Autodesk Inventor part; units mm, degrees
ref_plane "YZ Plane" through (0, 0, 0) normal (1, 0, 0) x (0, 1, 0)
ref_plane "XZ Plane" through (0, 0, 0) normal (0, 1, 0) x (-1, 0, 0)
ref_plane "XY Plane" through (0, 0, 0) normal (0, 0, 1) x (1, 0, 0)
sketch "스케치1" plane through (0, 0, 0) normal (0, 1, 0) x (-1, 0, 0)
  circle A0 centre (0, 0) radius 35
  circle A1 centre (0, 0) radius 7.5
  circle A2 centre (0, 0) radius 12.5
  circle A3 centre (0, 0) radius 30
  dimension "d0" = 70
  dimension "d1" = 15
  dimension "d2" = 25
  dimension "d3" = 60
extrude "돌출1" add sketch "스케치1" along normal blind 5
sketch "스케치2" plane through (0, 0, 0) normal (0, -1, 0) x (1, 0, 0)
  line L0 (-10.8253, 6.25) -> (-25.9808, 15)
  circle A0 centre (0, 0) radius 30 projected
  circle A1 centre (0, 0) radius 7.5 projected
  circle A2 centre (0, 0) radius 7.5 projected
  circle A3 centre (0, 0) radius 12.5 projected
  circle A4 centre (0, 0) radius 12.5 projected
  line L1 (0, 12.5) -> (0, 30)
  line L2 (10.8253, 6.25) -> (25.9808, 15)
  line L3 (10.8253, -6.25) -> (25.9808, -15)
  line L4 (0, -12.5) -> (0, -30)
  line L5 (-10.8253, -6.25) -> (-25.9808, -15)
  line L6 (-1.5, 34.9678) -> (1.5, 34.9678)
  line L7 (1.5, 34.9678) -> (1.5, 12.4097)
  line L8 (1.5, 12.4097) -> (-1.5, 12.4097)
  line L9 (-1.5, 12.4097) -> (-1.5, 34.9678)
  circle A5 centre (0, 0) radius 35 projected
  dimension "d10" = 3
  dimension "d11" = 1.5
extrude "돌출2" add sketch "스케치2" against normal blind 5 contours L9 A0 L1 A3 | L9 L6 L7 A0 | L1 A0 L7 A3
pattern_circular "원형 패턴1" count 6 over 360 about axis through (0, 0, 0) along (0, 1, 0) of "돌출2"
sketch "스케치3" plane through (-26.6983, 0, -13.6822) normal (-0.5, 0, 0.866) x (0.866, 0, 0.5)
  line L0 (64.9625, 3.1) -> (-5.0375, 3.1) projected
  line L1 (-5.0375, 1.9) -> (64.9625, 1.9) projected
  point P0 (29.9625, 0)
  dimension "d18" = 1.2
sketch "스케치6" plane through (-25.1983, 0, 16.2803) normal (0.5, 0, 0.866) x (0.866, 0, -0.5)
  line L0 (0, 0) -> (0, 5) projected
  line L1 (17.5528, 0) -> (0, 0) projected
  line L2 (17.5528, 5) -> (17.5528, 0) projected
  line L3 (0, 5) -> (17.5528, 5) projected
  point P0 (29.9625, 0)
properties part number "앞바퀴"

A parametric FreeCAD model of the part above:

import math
import FreeCAD as App
import Part
import Sketcher
from FreeCAD import Vector
Q = App.Units.Quantity

doc = App.newDocument("Part")
params = doc.addObject("Spreadsheet::Sheet", "Params")
for row, (alias, value) in enumerate([
    ("sketch1_diameter", "70 mm"),
    ("sketch1_diameter2", "60 mm"),
    ("sketch1_diameter3", "25 mm"),
    ("sketch1_diameter4", "15 mm"),
    ("pad1_length", "5 mm"),
    ("sketch2_width", "3 mm"),
    ("sketch2_radius", "12.5 mm"),
    ("pad2_length", "5 mm"),
], start=1):
    params.set(f"A{row}", alias)
    params.set(f"B{row}", "=" + value)
    params.setAlias(f"B{row}", alias)

body = doc.addObject("PartDesign::Body", "Body")
body.AllowCompound = True

# Sketch on XZ plane
sketch1 = body.newObject("Sketcher::SketchObject", "Sketch")
sketch1.AttachmentSupport = (doc.getObject("XZ_Plane"), [""])
sketch1.MapMode = "FlatFace"
sketch1.addGeometry(Part.Circle(Vector(0, 0, 0), Vector(0, 0, 1), 35), False)
sketch1.addGeometry(Part.Circle(Vector(0, 0, 0), Vector(0, 0, 1), 30), False)
sketch1.addGeometry(Part.Circle(Vector(0, 0, 0), Vector(0, 0, 1), 12), False)
sketch1.addGeometry(Part.Circle(Vector(0, 0, 0), Vector(0, 0, 1), 8), False)
sketch1.addConstraint(Sketcher.Constraint("Coincident", 0, 3, -1, 1))
sketch1.addConstraint(Sketcher.Constraint("Coincident", 1, 3, -1, 1))
sketch1.addConstraint(Sketcher.Constraint("Coincident", 2, 3, -1, 1))
sketch1.addConstraint(Sketcher.Constraint("Coincident", 3, 3, -1, 1))
sketch1.addConstraint(Sketcher.Constraint("Diameter", 0, Q("70 mm")))
sketch1.addConstraint(Sketcher.Constraint("Diameter", 1, Q("60 mm")))
sketch1.addConstraint(Sketcher.Constraint("Diameter", 2, Q("25 mm")))
sketch1.addConstraint(Sketcher.Constraint("Diameter", 3, Q("15 mm")))
sketch1.setExpression("Constraints[4]", "Params.sketch1_diameter")
sketch1.setExpression("Constraints[5]", "Params.sketch1_diameter2")
sketch1.setExpression("Constraints[6]", "Params.sketch1_diameter3")
sketch1.setExpression("Constraints[7]", "Params.sketch1_diameter4")
pad1 = body.newObject("PartDesign::Pad", "Pad")
pad1.Profile = sketch1
pad1.setExpression("Length", "Params.pad1_length")
pad1.Reversed = True

# Sketch on XZ plane
sketch2 = body.newObject("Sketcher::SketchObject", "Sketch001")
sketch2.AttachmentSupport = (doc.getObject("XZ_Plane"), [""])
sketch2.MapMode = "FlatFace"
sketch2.addGeometry(Part.ArcOfCircle(Part.Circle(Vector(0, 0, 0), Vector(0, 0, 1), 12.5), math.radians(83.11), math.radians(96.89)), False)
sketch2.addGeometry(Part.LineSegment(Vector(1.5, 12.4, 0), Vector(1.5, 35, 0)), False)
sketch2.addGeometry(Part.LineSegment(Vector(1.5, 35, 0), Vector(-1.5, 35, 0)), False)
sketch2.addGeometry(Part.LineSegment(Vector(-1.5, 35, 0), Vector(-1.5, 12.4, 0)), False)
sketch2.addConstraint(Sketcher.Constraint("Coincident", 0, 1, 1, 1))
sketch2.addConstraint(Sketcher.Constraint("Coincident", 1, 2, 2, 1))
sketch2.addConstraint(Sketcher.Constraint("Coincident", 2, 2, 3, 1))
sketch2.addConstraint(Sketcher.Constraint("Coincident", 3, 2, 0, 2))
sketch2.addConstraint(Sketcher.Constraint("Vertical", 1))
sketch2.addConstraint(Sketcher.Constraint("Horizontal", 2))
sketch2.addConstraint(Sketcher.Constraint("Vertical", 3))
sketch2.addConstraint(Sketcher.Constraint("Coincident", 0, 3, -1, 1))
sketch2.addConstraint(Sketcher.Constraint("Horizontal", 0, 1, 3, 2))
sketch2.addConstraint(Sketcher.Constraint("DistanceX", 2, 2, 2, 1, Q("3 mm")))
sketch2.addConstraint(Sketcher.Constraint("Radius", 0, Q("12.5 mm")))
sketch2.addConstraint(Sketcher.Constraint("DistanceY", 1, 1, 1, 2, Q("22.558 mm")))
sketch2.setExpression("Constraints[9]", "Params.sketch2_width")
sketch2.setExpression("Constraints[10]", "Params.sketch2_radius")
pad2 = body.newObject("PartDesign::Pad", "Pad001")
pad2.Profile = sketch2
pad2.setExpression("Length", "Params.pad2_length")
pad2.Reversed = True
doc.recompute()

polarpattern = body.newObject("PartDesign::PolarPattern", "PolarPattern")
polarpattern.Originals = [pad2]
polarpattern.Axis = (doc.getObject("Y_Axis"), [""])
polarpattern.Angle = 360
polarpattern.Occurrences = 6
body.Tip = polarpattern

doc.recompute()
